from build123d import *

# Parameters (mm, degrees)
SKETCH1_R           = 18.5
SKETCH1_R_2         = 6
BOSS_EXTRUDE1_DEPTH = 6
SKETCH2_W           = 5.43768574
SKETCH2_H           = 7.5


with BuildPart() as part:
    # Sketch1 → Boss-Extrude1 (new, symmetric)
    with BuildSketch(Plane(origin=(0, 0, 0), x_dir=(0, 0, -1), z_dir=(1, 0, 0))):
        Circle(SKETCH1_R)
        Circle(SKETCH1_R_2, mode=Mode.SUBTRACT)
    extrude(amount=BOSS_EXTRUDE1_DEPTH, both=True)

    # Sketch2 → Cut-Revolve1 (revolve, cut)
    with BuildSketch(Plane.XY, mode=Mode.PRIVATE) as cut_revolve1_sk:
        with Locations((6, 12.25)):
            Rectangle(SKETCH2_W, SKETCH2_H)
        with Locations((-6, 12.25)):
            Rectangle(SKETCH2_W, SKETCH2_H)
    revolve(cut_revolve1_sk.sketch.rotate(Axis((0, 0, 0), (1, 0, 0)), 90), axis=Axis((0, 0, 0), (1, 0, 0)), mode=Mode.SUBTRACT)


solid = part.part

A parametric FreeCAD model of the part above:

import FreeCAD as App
import Part
import Sketcher

V = App.Vector


def add_polygon(sketch, points):
    """Adds a closed chain of lines whose ends are joined by coincident constraints."""
    first, n = sketch.GeometryCount, len(points)
    for a, b in zip(points, points[1:] + points[:1]):
        sketch.addGeometry(Part.LineSegment(App.Vector(*a, 0), App.Vector(*b, 0)), False)
    for i in range(n):
        sketch.addConstraint(Sketcher.Constraint("Coincident", first + i, 2, first + (i + 1) % n, 1))

doc = App.newDocument("Part")
params = doc.addObject("Spreadsheet::Sheet", "Params")
for row, (alias, value) in enumerate([
    ("sketch1_diameter", "37 mm"),
    ("sketch1_diameter2", "12 mm"),
    ("pad1_length", "12 mm"),
    ("sketch2_height", "7.5 mm"),
    ("groove_angle", "360 deg"),
], start=1):
    params.set(f"A{row}", alias)
    params.set(f"B{row}", "=" + value)
    params.setAlias(f"B{row}", alias)

body = doc.addObject("PartDesign::Body", "Body")

# Sketch on YZ plane
sketch1 = doc.addObject("Sketcher::SketchObject", "Sketch")
body.addObject(sketch1)
sketch1.AttachmentSupport = (doc.YZ_Plane, [""])
sketch1.MapMode = "FlatFace"
sketch1.addGeometry([
    Part.Circle(V(0, 0, 0), V(0, 0, 1), 18),
    Part.Circle(V(0, 0, 0), V(0, 0, 1), 6),
], False)
sketch1.addConstraint([
    Sketcher.Constraint("Coincident", 0, 3, -1, 1),
    Sketcher.Constraint("Coincident", 1, 3, -1, 1),
    Sketcher.Constraint("Diameter", 0, 37.0),
    Sketcher.Constraint("Diameter", 1, 12.0),
])
sketch1.setExpression("Constraints[2]", "Params.sketch1_diameter")
sketch1.setExpression("Constraints[3]", "Params.sketch1_diameter2")
pad1 = doc.addObject("PartDesign::Pad", "Pad")
body.addObject(pad1)
pad1.Profile = sketch1
pad1.setExpression("Length", "Params.pad1_length")
pad1.Midplane = True

# Sketch on XY plane
sketch2 = doc.addObject("Sketcher::SketchObject", "Sketch001")
body.addObject(sketch2)
sketch2.AttachmentSupport = (doc.XY_Plane, [""])
sketch2.MapMode = "FlatFace"
add_polygon(sketch2, [(3, 16), (3, 8), (9, 8), (9, 16)])  # lines 0-3
add_polygon(sketch2, [(-9, 16), (-9, 8), (-3, 8), (-3, 16)])  # lines 4-7
sketch2.addConstraint([
    Sketcher.Constraint("Vertical", 0),
    Sketcher.Constraint("Horizontal", 1),
    Sketcher.Constraint("Vertical", 2),
    Sketcher.Constraint("Horizontal", 3),
    Sketcher.Constraint("Vertical", 4),
    Sketcher.Constraint("Horizontal", 5),
    Sketcher.Constraint("Vertical", 6),
    Sketcher.Constraint("Horizontal", 7),
    Sketcher.Constraint("Symmetric", 1, 2, 4, 2, -2),
    Sketcher.Constraint("Symmetric", 3, 2, 6, 2, -2),
    Sketcher.Constraint("DistanceY", 0, 2, 0, 1, 7.5),
    Sketcher.Constraint("DistanceY", -1, 1, 2, 2, 16.0),
    Sketcher.Constraint("DistanceX", 4, 2, 0, 2, 12.0),
    Sketcher.Constraint("DistanceX", 1, 1, 1, 2, 5.437686),
])
sketch2.setExpression("Constraints[18]", "Params.sketch2_height")
groove = doc.addObject("PartDesign::Groove", "Groove")
body.addObject(groove)
groove.Profile = sketch2
groove.ReferenceAxis = (sketch2, ["H_Axis"])
groove.setExpression("Angle", "Params.groove_angle")

doc.recompute()
